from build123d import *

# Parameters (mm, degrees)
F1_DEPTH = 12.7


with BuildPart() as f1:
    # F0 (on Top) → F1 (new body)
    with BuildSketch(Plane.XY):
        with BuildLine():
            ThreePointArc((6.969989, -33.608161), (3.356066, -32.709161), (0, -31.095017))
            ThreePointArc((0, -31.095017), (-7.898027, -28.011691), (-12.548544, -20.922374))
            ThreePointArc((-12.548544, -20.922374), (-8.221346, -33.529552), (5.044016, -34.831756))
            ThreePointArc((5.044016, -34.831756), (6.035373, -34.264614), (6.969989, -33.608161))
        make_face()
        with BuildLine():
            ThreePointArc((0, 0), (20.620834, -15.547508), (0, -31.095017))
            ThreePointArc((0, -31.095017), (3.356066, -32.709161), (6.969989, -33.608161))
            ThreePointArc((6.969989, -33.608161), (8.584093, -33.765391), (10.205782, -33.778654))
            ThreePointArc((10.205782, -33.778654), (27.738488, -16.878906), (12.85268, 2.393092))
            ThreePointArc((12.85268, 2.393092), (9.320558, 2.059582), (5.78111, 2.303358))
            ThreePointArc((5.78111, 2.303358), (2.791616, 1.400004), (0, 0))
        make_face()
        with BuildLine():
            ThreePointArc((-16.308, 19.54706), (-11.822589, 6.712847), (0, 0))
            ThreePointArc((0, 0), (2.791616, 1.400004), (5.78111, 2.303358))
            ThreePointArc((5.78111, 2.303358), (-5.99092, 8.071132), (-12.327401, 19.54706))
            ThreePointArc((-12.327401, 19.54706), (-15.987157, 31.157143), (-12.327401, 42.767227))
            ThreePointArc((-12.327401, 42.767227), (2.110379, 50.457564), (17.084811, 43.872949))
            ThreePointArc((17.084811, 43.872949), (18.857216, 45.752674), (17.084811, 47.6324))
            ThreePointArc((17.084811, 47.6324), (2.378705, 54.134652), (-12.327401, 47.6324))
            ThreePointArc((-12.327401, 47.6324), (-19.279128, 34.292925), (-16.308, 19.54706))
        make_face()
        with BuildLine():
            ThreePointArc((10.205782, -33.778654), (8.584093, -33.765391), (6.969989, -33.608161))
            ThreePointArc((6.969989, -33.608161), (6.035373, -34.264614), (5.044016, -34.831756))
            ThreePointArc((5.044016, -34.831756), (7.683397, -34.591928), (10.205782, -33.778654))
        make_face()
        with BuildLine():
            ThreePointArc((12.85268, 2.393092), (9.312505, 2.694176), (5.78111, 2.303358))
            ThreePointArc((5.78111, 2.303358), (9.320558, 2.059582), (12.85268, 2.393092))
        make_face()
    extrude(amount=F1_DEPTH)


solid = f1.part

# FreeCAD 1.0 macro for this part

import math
import FreeCAD as App
import Part
import Sketcher
from FreeCAD import Vector
Q = App.Units.Quantity

doc = App.newDocument("Part")
body = doc.addObject("PartDesign::Body", "Body")

# Sketch on XY plane
sketch1 = body.newObject("Sketcher::SketchObject", "Sketch")
sketch1.AttachmentSupport = (doc.getObject("XY_Plane"), [""])
sketch1.MapMode = "FlatFace"
sketch1.addGeometry(Part.ArcOfCircle(Part.Circle(Vector(0.88016, -17.18329, 0), Vector(0, 0, 1), 13.939542), math.radians(-164.440687), math.radians(-93.620134)), False)
sketch1.addGeometry(Part.ArcOfCircle(Part.Circle(Vector(-0.575434, -23.859016, 0), Vector(0, 0, 1), 12.327986), math.radians(166.219118), math.radians(297.118267)), False)
sketch1.addGeometry(Part.ArcOfCircle(Part.Circle(Vector(5.284324, -22.832908, 0), Vector(0, 0, 1), 12.001255), math.radians(-91.147344), math.radians(-65.790227)), False)
sketch1.addGeometry(Part.ArcOfCircle(Part.Circle(Vector(9.543983, -15.547509, 0), Vector(0, 0, 1), 18.243153), math.radians(-87.921049), math.radians(79.550635)), False)
sketch1.addGeometry(Part.ArcOfCircle(Part.Circle(Vector(9.543981, -15.547508, 0), Vector(0, 0, 1), 18.243153), math.radians(79.550629), math.radians(101.903392)), False)
sketch1.addGeometry(Part.ArcOfCircle(Part.Circle(Vector(9.04392, 23.860002, 0), Vector(0, 0, 1), 21.802175), math.radians(-168.590397), math.radians(-98.606949)), False)
sketch1.addGeometry(Part.ArcOfCircle(Part.Circle(Vector(4.258435, 31.157144, 0), Vector(0, 0, 1), 20.245592), math.radians(145.007984), math.radians(214.992016)), False)
sketch1.addGeometry(Part.ArcOfCircle(Part.Circle(Vector(2.814101, 31.738544, 0), Vector(0, 0, 1), 18.732244), math.radians(40.374563), math.radians(143.931362)), False)
sketch1.addGeometry(Part.ArcOfCircle(Part.Circle(Vector(16.974241, 45.752674, 0), Vector(0, 0, 1), 1.882975), math.radians(-86.633613), math.radians(86.633613)), False)
sketch1.addGeometry(Part.ArcOfCircle(Part.Circle(Vector(2.378705, 34.253168, 0), Vector(0, 0, 1), 19.881484), math.radians(42.295108), math.radians(137.704892)), False)
sketch1.addGeometry(Part.ArcOfCircle(Part.Circle(Vector(3.074553, 31.124686, 0), Vector(0, 0, 1), 22.577086), math.radians(133.015335), math.radians(210.850803)), False)
sketch1.addGeometry(Part.ArcOfCircle(Part.Circle(Vector(3.030592, 19.104771, 0), Vector(0, 0, 1), 19.343649), math.radians(178.689827), math.radians(260.98627)), False)
sketch1.addGeometry(Part.ArcOfCircle(Part.Circle(Vector(4.449233, -15.547508, 0), Vector(0, 0, 1), 16.171601), math.radians(-105.96954), math.radians(105.96954)), False)
sketch1.addConstraint(Sketcher.Constraint("Coincident", 0, 1, 1, 1))
sketch1.addConstraint(Sketcher.Constraint("Coincident", 1, 2, 2, 1))
sketch1.addConstraint(Sketcher.Constraint("Coincident", 2, 2, 3, 1))
sketch1.addConstraint(Sketcher.Constraint("Coincident", 3, 2, 4, 1))
sketch1.addConstraint(Sketcher.Constraint("Coincident", 4, 2, 5, 2))
sketch1.addConstraint(Sketcher.Constraint("Coincident", 5, 1, 6, 2))
sketch1.addConstraint(Sketcher.Constraint("Coincident", 6, 1, 7, 2))
sketch1.addConstraint(Sketcher.Constraint("Coincident", 7, 1, 8, 1))
sketch1.addConstraint(Sketcher.Constraint("Coincident", 8, 2, 9, 1))
sketch1.addConstraint(Sketcher.Constraint("Coincident", 9, 2, 10, 1))
sketch1.addConstraint(Sketcher.Constraint("Coincident", 10, 2, 11, 1))
sketch1.addConstraint(Sketcher.Constraint("Coincident", 11, 2, 12, 2))
sketch1.addConstraint(Sketcher.Constraint("Coincident", 12, 1, 0, 2))
sketch1.addConstraint(Sketcher.Constraint("Coincident", 11, 2, -1, 1))
sketch1.addConstraint(Sketcher.Constraint("Coincident", 4, 3, 3, 3))
sketch1.addConstraint(Sketcher.Constraint("PointOnObject", 12, 1, -2))
sketch1.addConstraint(Sketcher.Constraint("Radius", 12, Q("16.171601 mm")))
sketch1.addConstraint(Sketcher.Constraint("Radius", 6, Q("20.245592 mm")))
sketch1.addConstraint(Sketcher.Constraint("Radius", 11, Q("19.343649 mm")))
sketch1.addConstraint(Sketcher.Constraint("Radius", 0, Q("13.939542 mm")))
sketch1.addConstraint(Sketcher.Constraint("Radius", 1, Q("12.327986 mm")))
sketch1.addConstraint(Sketcher.Constraint("Radius", 2, Q("12.001255 mm")))
sketch1.addConstraint(Sketcher.Constraint("Radius", 3, Q("18.243153 mm")))
sketch1.addConstraint(Sketcher.Constraint("Radius", 5, Q("21.802175 mm")))
sketch1.addConstraint(Sketcher.Constraint("Radius", 7, Q("18.732244 mm")))
sketch1.addConstraint(Sketcher.Constraint("Radius", 8, Q("1.882975 mm")))
sketch1.addConstraint(Sketcher.Constraint("Radius", 9, Q("19.881484 mm")))
sketch1.addConstraint(Sketcher.Constraint("Radius", 10, Q("22.577086 mm")))
sketch1.addConstraint(Sketcher.Constraint("DistanceY", 7, 3, 6, 1, Q("0.4342001 in")))
sketch1.addConstraint(Sketcher.Constraint("DistanceY", 10, 3, 7, 1, Q("0.5019001 in")))
sketch1.addConstraint(Sketcher.Constraint("DistanceX", -1, 1, 7, 3, Q("2.814101 mm")))
sketch1.addConstraint(Sketcher.Constraint("DistanceX", 5, 1, -1, 1, Q("12.327401 mm")))
sketch1.addConstraint(Sketcher.Constraint("DistanceY", -1, 1, 8, 2, Q("47.6324 mm")))
sketch1.addConstraint(Sketcher.Constraint("DistanceX", 9, 2, -1, 1, Q("12.327401 mm")))
sketch1.addConstraint(Sketcher.Constraint("DistanceY", -1, 1, 9, 2, Q("47.6324 mm")))
sketch1.addConstraint(Sketcher.Constraint("DistanceX", 10, 2, -1, 1, Q("16.308 mm")))
sketch1.addConstraint(Sketcher.Constraint("DistanceY", 2, 3, 3, 3, Q("7.285399 mm")))
sketch1.addConstraint(Sketcher.Constraint("DistanceY", 6, 3, 7, 3, Q("0.5814 mm")))
sketch1.addConstraint(Sketcher.Constraint("DistanceY", 2, 3, 12, 3, Q("7.285399 mm")))
sketch1.addConstraint(Sketcher.Constraint("DistanceX", 3, 3, 2, 2, Q("0.661799 mm")))
sketch1.addConstraint(Sketcher.Constraint("DistanceX", 4, 3, 3, 2, Q("3.308699 mm")))
sketch1.addConstraint(Sketcher.Constraint("DistanceY", 12, 1, 1, 3, Q("7.236001 mm")))
sketch1.addConstraint(Sketcher.Constraint("DistanceX", -1, 1, 0, 3, Q("0.88016 mm")))
sketch1.addConstraint(Sketcher.Constraint("DistanceY", 0, 3, -1, 1, Q("17.18329 mm")))
sketch1.addConstraint(Sketcher.Constraint("DistanceX", -1, 1, 4, 3, Q("9.543981 mm")))
sketch1.addConstraint(Sketcher.Constraint("DistanceX", -1, 1, 5, 3, Q("9.04392 mm")))
sketch1.addConstraint(Sketcher.Constraint("DistanceX", -1, 1, 8, 3, Q("16.974241 mm")))
sketch1.addConstraint(Sketcher.Constraint("DistanceY", -1, 1, 9, 3, Q("34.253168 mm")))
sketch1.addConstraint(Sketcher.Constraint("DistanceX", -1, 1, 4, 2, Q("5.78111 mm")))
sketch1.addConstraint(Sketcher.Constraint("DistanceX", 1, 3, 2, 3, Q("5.859758 mm")))
pad1 = body.newObject("PartDesign::Pad", "Pad")
pad1.Profile = sketch1
pad1.Length = Q("0.5 in")

doc.recompute()
